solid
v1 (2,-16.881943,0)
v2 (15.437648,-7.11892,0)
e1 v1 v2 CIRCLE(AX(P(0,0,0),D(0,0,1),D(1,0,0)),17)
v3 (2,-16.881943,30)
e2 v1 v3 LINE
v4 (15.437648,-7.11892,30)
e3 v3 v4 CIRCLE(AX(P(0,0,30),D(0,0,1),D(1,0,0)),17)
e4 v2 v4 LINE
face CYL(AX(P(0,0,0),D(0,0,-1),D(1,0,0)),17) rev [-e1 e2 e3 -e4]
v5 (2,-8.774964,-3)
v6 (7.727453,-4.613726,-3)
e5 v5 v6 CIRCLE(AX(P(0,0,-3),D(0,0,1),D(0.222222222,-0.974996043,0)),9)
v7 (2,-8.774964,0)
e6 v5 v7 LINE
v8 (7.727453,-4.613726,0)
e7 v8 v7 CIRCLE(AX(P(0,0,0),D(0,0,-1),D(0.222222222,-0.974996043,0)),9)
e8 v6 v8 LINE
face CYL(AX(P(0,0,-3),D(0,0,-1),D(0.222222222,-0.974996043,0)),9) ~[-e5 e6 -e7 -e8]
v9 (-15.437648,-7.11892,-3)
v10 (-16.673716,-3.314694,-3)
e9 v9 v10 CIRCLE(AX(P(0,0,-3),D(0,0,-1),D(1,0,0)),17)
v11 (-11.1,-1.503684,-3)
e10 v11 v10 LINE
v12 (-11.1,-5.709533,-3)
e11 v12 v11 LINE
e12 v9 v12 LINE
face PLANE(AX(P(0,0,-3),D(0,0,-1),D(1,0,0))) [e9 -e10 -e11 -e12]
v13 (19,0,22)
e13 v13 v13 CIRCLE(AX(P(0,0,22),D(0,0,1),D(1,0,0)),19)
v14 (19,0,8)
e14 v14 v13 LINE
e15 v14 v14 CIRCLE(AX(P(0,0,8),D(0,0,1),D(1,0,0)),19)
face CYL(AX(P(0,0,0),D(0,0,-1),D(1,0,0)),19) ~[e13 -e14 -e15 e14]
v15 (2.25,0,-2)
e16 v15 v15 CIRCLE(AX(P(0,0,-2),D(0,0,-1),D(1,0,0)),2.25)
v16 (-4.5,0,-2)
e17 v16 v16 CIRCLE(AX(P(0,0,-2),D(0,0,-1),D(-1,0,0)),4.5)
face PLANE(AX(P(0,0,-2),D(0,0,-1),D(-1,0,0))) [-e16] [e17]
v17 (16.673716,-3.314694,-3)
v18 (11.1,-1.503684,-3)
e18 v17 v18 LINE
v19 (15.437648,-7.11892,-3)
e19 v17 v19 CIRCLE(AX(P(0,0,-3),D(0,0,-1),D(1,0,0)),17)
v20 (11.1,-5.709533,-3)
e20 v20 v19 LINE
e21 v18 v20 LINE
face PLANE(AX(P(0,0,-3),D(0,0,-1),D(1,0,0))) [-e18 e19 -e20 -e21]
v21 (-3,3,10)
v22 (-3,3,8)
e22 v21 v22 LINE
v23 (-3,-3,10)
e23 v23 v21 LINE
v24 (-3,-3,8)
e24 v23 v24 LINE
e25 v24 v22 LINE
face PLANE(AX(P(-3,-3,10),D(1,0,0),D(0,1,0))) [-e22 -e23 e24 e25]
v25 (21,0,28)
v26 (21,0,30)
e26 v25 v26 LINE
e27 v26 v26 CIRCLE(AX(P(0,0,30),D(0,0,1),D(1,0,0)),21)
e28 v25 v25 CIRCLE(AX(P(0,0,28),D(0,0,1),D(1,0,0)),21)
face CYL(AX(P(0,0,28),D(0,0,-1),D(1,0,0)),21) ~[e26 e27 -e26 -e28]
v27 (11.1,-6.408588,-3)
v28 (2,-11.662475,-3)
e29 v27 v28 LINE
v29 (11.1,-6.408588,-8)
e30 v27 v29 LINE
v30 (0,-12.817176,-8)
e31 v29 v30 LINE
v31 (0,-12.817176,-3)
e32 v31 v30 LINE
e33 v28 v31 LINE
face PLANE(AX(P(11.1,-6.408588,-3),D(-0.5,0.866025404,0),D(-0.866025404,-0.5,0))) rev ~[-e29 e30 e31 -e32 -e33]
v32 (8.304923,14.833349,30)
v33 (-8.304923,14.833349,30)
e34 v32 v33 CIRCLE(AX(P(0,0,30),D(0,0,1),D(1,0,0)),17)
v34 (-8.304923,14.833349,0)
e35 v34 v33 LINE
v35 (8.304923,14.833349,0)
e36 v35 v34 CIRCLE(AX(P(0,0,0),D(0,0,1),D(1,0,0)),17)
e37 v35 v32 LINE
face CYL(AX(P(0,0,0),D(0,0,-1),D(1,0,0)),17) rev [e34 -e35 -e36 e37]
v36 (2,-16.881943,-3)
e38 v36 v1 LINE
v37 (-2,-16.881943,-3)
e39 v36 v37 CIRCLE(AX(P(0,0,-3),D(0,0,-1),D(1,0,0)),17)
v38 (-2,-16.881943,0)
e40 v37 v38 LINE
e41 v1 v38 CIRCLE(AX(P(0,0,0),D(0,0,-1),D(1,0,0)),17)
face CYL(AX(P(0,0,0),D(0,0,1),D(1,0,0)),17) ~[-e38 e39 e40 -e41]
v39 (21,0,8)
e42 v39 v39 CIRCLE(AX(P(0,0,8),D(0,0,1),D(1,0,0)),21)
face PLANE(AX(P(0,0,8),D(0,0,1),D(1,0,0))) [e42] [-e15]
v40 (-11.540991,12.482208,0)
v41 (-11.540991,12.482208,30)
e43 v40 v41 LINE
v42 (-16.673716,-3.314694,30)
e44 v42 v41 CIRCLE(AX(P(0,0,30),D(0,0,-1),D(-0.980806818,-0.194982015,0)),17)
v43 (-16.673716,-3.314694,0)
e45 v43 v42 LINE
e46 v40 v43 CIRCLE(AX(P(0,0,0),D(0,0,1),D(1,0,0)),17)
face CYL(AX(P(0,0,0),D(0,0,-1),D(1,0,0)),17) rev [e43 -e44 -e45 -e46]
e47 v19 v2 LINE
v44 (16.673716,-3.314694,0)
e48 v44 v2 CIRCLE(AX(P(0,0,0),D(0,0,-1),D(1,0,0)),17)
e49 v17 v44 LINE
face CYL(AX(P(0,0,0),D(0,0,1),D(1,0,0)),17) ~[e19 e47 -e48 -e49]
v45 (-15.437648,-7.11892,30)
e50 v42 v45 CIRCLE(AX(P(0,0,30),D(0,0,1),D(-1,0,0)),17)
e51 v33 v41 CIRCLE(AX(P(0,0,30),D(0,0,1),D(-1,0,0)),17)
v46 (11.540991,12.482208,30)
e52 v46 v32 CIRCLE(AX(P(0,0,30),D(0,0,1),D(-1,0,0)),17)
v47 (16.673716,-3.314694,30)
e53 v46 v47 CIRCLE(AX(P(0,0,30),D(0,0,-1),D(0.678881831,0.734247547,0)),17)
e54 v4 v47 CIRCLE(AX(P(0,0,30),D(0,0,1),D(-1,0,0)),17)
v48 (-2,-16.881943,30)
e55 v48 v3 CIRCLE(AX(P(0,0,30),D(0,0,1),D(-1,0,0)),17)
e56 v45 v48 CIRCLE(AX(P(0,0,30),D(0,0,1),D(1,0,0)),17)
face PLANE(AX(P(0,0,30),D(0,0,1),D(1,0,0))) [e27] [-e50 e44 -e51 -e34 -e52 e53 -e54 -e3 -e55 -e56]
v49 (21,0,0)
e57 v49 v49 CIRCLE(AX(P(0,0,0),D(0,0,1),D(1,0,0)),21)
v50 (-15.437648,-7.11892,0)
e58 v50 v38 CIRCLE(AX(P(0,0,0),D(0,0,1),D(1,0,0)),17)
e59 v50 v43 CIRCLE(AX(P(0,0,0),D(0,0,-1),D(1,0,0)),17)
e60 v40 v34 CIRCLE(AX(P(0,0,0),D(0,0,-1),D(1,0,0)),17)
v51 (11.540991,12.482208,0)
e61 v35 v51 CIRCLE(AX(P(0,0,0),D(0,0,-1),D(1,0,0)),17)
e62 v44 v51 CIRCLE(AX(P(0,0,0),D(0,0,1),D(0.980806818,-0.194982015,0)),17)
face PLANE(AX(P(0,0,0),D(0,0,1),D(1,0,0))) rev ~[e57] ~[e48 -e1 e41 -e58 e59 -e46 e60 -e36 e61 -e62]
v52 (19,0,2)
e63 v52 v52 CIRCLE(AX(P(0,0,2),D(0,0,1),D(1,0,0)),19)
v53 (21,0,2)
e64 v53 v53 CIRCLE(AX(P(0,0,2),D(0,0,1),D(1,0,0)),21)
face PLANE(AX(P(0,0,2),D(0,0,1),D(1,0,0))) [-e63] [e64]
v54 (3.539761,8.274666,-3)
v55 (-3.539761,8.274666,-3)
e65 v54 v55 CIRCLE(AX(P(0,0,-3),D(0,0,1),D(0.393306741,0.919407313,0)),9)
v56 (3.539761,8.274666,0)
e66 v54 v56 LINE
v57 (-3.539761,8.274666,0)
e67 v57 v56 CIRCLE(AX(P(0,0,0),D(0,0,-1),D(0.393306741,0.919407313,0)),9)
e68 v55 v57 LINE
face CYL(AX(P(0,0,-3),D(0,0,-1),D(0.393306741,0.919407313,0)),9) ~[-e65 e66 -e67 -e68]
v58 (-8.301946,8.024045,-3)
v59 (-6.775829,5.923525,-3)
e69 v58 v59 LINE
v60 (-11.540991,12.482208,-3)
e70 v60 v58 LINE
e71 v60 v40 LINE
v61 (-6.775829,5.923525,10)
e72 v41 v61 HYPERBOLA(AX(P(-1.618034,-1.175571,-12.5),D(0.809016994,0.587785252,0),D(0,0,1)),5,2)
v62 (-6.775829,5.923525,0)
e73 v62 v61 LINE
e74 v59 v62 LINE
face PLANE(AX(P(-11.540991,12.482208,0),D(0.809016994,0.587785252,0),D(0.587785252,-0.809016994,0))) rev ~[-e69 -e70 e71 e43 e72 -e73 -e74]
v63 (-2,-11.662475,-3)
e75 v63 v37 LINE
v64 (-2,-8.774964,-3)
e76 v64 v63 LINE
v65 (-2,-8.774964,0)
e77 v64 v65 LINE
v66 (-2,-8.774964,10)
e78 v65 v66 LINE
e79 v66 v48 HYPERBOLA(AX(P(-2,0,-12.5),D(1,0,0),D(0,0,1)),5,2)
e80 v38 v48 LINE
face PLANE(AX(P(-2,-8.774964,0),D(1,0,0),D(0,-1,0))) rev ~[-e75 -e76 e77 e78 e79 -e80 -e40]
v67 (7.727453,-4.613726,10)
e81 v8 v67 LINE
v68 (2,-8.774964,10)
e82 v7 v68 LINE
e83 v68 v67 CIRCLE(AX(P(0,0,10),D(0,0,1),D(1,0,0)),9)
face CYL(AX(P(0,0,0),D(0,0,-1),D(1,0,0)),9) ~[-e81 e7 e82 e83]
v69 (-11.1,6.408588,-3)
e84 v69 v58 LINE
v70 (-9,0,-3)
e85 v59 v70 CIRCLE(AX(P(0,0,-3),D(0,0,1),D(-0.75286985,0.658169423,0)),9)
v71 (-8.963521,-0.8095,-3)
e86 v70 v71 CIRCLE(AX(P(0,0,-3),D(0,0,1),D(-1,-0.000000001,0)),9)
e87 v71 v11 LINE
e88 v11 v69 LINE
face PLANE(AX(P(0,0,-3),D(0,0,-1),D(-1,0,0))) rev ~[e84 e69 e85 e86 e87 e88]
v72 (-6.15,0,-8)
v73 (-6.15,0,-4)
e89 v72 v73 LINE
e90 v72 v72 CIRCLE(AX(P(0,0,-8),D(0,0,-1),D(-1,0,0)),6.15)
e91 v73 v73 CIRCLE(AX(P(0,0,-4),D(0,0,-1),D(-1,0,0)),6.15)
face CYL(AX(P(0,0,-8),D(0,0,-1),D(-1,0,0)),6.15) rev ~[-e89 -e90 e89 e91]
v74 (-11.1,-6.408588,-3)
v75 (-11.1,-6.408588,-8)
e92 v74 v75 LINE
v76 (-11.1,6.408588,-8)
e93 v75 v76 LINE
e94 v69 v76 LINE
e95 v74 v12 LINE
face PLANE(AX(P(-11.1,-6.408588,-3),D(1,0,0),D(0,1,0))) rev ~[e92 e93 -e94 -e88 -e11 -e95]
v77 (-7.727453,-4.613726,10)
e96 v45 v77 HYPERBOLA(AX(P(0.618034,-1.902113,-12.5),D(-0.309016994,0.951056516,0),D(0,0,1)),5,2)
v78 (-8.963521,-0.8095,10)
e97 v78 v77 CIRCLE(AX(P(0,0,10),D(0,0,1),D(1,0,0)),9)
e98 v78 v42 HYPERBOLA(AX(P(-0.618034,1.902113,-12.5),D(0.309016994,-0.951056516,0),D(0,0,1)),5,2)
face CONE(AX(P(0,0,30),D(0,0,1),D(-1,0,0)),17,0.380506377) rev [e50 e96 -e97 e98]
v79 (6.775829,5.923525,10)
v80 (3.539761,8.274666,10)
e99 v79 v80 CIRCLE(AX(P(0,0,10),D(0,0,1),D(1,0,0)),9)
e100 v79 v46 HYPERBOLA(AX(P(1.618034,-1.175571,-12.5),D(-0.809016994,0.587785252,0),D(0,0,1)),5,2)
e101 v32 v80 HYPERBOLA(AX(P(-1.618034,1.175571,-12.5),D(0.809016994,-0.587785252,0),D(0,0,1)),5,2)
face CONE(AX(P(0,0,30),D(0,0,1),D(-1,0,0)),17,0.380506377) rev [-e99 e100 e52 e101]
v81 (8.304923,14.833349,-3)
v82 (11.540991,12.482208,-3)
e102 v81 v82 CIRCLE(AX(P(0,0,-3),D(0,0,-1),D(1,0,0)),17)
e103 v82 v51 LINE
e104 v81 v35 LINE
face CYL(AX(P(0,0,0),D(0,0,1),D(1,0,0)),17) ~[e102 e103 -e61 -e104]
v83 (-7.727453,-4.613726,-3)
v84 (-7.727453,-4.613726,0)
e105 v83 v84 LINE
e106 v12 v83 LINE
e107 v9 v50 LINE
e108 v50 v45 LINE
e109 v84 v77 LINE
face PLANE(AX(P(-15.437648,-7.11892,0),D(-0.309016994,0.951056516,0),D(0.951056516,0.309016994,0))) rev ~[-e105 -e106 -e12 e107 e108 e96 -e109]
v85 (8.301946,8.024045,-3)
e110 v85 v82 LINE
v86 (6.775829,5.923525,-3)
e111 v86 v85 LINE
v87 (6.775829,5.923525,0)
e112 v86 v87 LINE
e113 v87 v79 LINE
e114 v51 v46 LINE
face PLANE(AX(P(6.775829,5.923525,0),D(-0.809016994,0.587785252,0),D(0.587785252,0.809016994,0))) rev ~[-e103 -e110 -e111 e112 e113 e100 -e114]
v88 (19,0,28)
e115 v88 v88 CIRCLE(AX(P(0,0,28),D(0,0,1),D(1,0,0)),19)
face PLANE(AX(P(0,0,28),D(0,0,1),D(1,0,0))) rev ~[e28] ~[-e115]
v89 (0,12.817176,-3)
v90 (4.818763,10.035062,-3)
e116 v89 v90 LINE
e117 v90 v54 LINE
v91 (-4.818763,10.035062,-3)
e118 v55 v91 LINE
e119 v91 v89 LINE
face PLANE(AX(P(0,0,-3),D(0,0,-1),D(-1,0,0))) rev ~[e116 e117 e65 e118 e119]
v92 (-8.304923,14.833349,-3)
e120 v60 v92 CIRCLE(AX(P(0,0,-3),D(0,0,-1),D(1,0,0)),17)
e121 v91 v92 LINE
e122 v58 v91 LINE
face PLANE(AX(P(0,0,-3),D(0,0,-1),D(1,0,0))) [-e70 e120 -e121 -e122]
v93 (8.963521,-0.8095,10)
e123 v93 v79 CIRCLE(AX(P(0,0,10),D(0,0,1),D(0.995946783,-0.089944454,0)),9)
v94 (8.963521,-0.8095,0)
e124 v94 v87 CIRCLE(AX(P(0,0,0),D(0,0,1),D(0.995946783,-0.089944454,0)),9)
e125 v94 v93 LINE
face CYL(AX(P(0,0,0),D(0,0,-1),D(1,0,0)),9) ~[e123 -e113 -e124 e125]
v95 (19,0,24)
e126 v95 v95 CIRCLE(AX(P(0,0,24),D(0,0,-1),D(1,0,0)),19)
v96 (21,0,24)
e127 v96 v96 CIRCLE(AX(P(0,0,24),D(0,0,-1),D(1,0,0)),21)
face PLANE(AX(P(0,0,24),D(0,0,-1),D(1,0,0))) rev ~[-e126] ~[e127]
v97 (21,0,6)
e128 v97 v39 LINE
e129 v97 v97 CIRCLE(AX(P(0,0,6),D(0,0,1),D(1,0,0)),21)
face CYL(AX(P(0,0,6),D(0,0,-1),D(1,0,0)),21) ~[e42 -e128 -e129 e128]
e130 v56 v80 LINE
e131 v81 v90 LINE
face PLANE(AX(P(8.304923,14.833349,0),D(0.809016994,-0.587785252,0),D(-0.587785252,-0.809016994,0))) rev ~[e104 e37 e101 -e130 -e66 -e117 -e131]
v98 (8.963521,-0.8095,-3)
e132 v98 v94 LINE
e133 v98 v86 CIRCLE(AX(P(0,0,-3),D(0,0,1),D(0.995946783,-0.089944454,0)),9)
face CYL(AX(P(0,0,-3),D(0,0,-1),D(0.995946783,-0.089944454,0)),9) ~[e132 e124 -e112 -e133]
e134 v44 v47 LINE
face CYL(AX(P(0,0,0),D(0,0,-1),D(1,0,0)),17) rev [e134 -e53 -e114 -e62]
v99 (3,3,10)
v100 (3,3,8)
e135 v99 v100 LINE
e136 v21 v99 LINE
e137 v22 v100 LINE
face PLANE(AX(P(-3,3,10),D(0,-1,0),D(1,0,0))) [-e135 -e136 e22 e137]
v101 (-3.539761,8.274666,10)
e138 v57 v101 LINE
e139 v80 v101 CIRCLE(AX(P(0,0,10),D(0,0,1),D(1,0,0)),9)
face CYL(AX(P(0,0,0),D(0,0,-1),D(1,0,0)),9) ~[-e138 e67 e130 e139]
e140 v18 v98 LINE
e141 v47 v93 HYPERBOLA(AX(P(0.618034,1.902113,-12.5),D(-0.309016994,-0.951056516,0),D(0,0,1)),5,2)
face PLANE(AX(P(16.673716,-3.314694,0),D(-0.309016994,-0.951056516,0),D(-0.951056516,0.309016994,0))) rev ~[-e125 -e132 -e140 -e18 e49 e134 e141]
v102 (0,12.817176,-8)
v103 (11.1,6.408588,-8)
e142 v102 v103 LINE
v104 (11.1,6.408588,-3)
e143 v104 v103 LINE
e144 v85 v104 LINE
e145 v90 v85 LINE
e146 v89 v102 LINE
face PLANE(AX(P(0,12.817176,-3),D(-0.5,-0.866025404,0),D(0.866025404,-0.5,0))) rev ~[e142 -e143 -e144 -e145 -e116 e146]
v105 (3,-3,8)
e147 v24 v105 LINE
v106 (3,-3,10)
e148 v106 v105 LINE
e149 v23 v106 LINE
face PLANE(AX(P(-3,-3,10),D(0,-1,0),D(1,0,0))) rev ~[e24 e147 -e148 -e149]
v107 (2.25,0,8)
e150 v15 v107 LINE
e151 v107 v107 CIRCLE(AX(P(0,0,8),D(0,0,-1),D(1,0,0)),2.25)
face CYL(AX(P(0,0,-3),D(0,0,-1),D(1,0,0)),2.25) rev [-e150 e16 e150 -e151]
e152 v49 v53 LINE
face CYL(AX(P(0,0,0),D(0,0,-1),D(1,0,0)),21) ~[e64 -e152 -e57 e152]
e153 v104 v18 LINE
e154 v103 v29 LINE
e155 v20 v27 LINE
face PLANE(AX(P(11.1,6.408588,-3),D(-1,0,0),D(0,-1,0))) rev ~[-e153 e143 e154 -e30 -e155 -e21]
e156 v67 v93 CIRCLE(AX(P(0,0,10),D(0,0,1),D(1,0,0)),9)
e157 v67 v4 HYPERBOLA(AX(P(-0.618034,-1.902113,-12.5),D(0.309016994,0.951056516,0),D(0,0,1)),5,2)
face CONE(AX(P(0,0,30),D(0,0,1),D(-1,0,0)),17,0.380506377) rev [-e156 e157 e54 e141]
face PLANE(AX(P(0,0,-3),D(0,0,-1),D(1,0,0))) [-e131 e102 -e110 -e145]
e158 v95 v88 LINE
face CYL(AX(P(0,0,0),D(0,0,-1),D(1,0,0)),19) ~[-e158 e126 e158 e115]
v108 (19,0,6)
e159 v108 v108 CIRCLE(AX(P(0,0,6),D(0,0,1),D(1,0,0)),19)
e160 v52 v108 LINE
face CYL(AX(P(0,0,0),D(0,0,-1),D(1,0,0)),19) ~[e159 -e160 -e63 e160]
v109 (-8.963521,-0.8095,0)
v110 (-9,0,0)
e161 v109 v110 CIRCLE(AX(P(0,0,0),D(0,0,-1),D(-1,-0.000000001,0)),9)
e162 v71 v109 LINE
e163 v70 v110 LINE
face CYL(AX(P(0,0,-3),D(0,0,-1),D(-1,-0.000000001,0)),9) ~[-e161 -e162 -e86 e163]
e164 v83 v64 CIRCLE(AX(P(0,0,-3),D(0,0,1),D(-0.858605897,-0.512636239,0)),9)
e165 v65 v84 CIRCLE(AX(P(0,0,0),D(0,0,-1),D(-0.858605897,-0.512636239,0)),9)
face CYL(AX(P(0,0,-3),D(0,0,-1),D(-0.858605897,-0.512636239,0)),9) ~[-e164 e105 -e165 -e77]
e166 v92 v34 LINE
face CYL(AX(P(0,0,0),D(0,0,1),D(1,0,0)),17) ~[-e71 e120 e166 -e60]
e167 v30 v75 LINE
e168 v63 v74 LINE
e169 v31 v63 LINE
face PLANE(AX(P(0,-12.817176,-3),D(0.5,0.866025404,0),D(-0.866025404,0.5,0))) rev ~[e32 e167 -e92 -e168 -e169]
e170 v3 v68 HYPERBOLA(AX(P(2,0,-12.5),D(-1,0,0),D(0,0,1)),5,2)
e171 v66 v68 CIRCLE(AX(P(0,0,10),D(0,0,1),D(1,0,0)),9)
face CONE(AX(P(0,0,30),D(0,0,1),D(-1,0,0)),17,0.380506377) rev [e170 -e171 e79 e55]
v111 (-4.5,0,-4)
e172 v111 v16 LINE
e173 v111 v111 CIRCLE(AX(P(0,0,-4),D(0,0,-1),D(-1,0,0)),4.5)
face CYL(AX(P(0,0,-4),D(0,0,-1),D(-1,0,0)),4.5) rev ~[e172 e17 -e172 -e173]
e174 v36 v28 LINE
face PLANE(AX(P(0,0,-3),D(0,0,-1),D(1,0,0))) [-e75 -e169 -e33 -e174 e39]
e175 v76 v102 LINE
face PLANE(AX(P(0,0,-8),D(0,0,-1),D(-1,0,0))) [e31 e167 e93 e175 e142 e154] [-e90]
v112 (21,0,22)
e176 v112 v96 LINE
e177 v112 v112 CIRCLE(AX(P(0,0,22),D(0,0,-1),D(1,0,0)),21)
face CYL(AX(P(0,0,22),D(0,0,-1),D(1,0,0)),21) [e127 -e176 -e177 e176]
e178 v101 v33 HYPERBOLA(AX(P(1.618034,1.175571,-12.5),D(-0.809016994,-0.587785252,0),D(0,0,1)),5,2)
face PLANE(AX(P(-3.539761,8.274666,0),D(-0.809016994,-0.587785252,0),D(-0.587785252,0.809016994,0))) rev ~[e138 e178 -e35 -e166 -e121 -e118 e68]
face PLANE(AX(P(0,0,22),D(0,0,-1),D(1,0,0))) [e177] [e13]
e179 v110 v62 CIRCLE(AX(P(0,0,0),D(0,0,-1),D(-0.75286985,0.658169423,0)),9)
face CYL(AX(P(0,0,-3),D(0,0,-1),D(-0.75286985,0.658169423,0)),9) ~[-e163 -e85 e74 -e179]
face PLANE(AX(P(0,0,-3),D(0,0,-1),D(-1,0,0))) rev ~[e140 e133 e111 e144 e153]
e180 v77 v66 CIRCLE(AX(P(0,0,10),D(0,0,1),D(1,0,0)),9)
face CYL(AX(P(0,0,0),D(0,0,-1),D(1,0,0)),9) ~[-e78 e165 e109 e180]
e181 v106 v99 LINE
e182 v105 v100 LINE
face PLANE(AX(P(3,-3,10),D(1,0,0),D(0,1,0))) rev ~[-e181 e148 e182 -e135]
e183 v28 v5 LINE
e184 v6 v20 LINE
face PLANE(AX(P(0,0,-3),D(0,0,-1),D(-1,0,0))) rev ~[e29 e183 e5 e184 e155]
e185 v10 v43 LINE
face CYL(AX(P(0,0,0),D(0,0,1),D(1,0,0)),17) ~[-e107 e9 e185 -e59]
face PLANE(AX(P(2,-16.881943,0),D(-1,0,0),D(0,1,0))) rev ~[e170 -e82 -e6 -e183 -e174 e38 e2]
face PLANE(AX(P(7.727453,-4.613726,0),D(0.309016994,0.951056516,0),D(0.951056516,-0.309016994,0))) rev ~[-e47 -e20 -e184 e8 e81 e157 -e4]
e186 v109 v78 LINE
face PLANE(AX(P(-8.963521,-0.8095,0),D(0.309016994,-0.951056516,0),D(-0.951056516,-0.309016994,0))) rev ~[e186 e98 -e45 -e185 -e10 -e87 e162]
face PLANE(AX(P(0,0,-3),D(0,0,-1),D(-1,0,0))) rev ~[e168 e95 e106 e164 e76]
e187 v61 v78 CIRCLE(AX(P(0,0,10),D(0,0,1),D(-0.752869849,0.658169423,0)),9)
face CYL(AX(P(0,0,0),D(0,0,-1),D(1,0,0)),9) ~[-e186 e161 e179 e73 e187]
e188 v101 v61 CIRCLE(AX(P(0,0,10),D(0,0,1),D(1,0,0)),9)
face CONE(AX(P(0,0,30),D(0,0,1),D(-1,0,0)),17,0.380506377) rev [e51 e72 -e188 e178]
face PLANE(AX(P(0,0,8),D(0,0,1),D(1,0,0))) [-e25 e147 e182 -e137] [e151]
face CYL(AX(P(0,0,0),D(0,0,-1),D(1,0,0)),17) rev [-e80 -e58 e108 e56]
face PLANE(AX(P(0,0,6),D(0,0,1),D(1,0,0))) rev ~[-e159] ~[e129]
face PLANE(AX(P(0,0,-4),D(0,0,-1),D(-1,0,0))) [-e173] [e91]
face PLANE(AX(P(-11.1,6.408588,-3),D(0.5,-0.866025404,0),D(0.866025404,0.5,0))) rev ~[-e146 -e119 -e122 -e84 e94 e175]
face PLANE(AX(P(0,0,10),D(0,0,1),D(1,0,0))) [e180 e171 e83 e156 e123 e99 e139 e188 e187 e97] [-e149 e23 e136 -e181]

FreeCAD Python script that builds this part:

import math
import FreeCAD as App
import Part
import Sketcher

V = App.Vector
Q = App.Units.Quantity

doc = App.newDocument("Part")
body = doc.addObject("PartDesign::Body", "Body")

sketch1 = body.newObject("Sketcher::SketchObject", "Sketch")
sketch1.AttachmentSupport = (doc.getObject("XY_Plane"), [""])
sketch1.MapMode = "FlatFace"
sketch1.addGeometry(Part.Circle(V(0, 0, 0), V(0, 0, 1), 19), False)
sketch1.addGeometry(Part.Circle(V(0, 0, 0), V(0, 0, 1), 17), False)
sketch1.addConstraint(Sketcher.Constraint("Coincident", 0, 3, -1, 1))
sketch1.addConstraint(Sketcher.Constraint("Coincident", 1, 3, -1, 1))
sketch1.addConstraint(Sketcher.Constraint("Diameter", 0, Q("38 mm")))
sketch1.addConstraint(Sketcher.Constraint("Diameter", 1, Q("34 mm")))
pad1 = body.newObject("PartDesign::Pad", "Pad")
pad1.Profile = sketch1
pad1.Length = 30
body2 = doc.addObject("PartDesign::Body", "Body001")

sketch2 = body2.newObject("Sketcher::SketchObject", "Sketch001")
sketch2.AttachmentSupport = (doc.getObject("XY_Plane001"), [""])
sketch2.MapMode = "FlatFace"
sketch2.addGeometry(Part.Circle(V(0, 0, 0), V(0, 0, 1), 17), False)
sketch2.addConstraint(Sketcher.Constraint("Coincident", 0, 3, -1, 1))
sketch2.addConstraint(Sketcher.Constraint("Diameter", 0, Q("34 mm")))
pad2 = body2.newObject("PartDesign::Pad", "Pad001")
pad2.Profile = sketch2
pad2.Length = 3
pad2.Reversed = True

sketch3 = body2.newObject("Sketcher::SketchObject", "Sketch002")
sketch3.AttachmentSupport = (doc.getObject("XY_Plane001"), [""])
sketch3.MapMode = "FlatFace"
sketch3.AttachmentOffset = App.Placement(V(0, 0, -3), App.Rotation())
sketch3.addGeometry(Part.LineSegment(V(8.304923, 14.833349, 0), V(3.539761, 8.274666, 0)), False)
sketch3.addGeometry(Part.ArcOfCircle(Part.Circle(V(0, 0, 0), V(0, 0, 1), 9), math.radians(66.839588), math.radians(113.160412)), False)
sketch3.addGeometry(Part.LineSegment(V(-3.539761, 8.274666, 0), V(-8.304923, 14.833349, 0)), False)
sketch3.addGeometry(Part.ArcOfCircle(Part.Circle(V(0, 0, 0), V(0, 0, 1), 17), math.radians(60.756327), math.radians(119.243673)), False)
sketch3.addGeometry(Part.ArcOfCircle(Part.Circle(V(0, 0, 0), V(0, 0, 1), 9), math.radians(-180), math.radians(-174.839589)), False)
sketch3.addGeometry(Part.LineSegment(V(-8.963521, -0.8095, 0), V(-16.673716, -3.314694, 0)), False)
sketch3.addGeometry(Part.ArcOfCircle(Part.Circle(V(0, 0, 0), V(0, 0, 1), 17), math.radians(180), math.radians(191.243673)), False)
sketch3.addGeometry(Part.ArcOfCircle(Part.Circle(V(0, 0, 0), V(0, 0, 1), 17), math.radians(132.756327), math.radians(180)), False)
sketch3.addGeometry(Part.LineSegment(V(-11.540991, 12.482208, 0), V(-6.775829, 5.923525, 0)), False)
sketch3.addGeometry(Part.ArcOfCircle(Part.Circle(V(0, 0, 0), V(0, 0, 1), 9), math.radians(138.839588), math.radians(180)), False)
sketch3.addGeometry(Part.ArcOfCircle(Part.Circle(V(0, 0, 0), V(0, 0, 1), 9), math.radians(-149.160412), math.radians(-102.839588)), False)
sketch3.addGeometry(Part.LineSegment(V(-2, -8.774964, 0), V(-2, -16.881943, 0)), False)
sketch3.addGeometry(Part.ArcOfCircle(Part.Circle(V(0, 0, 0), V(0, 0, 1), 17), math.radians(-155.243673), math.radians(-96.756327)), False)
sketch3.addGeometry(Part.LineSegment(V(-15.437648, -7.11892, 0), V(-7.727453, -4.613726, 0)), False)
sketch3.addGeometry(Part.LineSegment(V(2, -16.881943, 0), V(2, -8.774964, 0)), False)
sketch3.addGeometry(Part.ArcOfCircle(Part.Circle(V(0, 0, 0), V(0, 0, 1), 9), math.radians(-77.160412), math.radians(-30.839588)), False)
sketch3.addGeometry(Part.LineSegment(V(7.727453, -4.613726, 0), V(15.437648, -7.11892, 0)), False)
sketch3.addGeometry(Part.ArcOfCircle(Part.Circle(V(0, 0, 0), V(0, 0, 1), 17), math.radians(-83.243673), math.radians(-24.756327)), False)
sketch3.addGeometry(Part.LineSegment(V(16.673716, -3.314694, 0), V(8.963521, -0.8095, 0)), False)
sketch3.addGeometry(Part.ArcOfCircle(Part.Circle(V(0, 0, 0), V(0, 0, 1), 9), math.radians(-5.160412), math.radians(41.160412)), False)
sketch3.addGeometry(Part.LineSegment(V(6.775829, 5.923525, 0), V(11.540991, 12.482208, 0)), False)
sketch3.addGeometry(Part.ArcOfCircle(Part.Circle(V(0, 0, 0), V(0, 0, 1), 17), math.radians(-11.243673), math.radians(47.243673)), False)
sketch3.addConstraint(Sketcher.Constraint("Coincident", 0, 2, 1, 1))
sketch3.addConstraint(Sketcher.Constraint("Coincident", 1, 2, 2, 1))
sketch3.addConstraint(Sketcher.Constraint("Coincident", 2, 2, 3, 2))
sketch3.addConstraint(Sketcher.Constraint("Coincident", 3, 1, 0, 1))
sketch3.addConstraint(Sketcher.Constraint("Coincident", 4, 2, 5, 1))
sketch3.addConstraint(Sketcher.Constraint("Coincident", 5, 2, 6, 2))
sketch3.addConstraint(Sketcher.Constraint("Tangent", 6, 1, 7, 2))
sketch3.addConstraint(Sketcher.Constraint("Coincident", 7, 1, 8, 1))
sketch3.addConstraint(Sketcher.Constraint("Coincident", 8, 2, 9, 1))
sketch3.addConstraint(Sketcher.Constraint("Tangent", 9, 2, 4, 1))
sketch3.addConstraint(Sketcher.Constraint("Coincident", 10, 2, 11, 1))
sketch3.addConstraint(Sketcher.Constraint("Coincident", 11, 2, 12, 2))
sketch3.addConstraint(Sketcher.Constraint("Coincident", 12, 1, 13, 1))
sketch3.addConstraint(Sketcher.Constraint("Coincident", 13, 2, 10, 1))
sketch3.addConstraint(Sketcher.Constraint("Coincident", 14, 2, 15, 1))
sketch3.addConstraint(Sketcher.Constraint("Coincident", 15, 2, 16, 1))
sketch3.addConstraint(Sketcher.Constraint("Coincident", 16, 2, 17, 2))
sketch3.addConstraint(Sketcher.Constraint("Coincident", 17, 1, 14, 1))
sketch3.addConstraint(Sketcher.Constraint("Coincident", 18, 2, 19, 1))
sketch3.addConstraint(Sketcher.Constraint("Coincident", 19, 2, 20, 1))
sketch3.addConstraint(Sketcher.Constraint("Coincident", 20, 2, 21, 2))
sketch3.addConstraint(Sketcher.Constraint("Coincident", 21, 1, 18, 1))
sketch3.addConstraint(Sketcher.Constraint("Vertical", 11))
sketch3.addConstraint(Sketcher.Constraint("Vertical", 14))
sketch3.addConstraint(Sketcher.Constraint("Coincident", 1, 3, -1, 1))
sketch3.addConstraint(Sketcher.Constraint("Coincident", 3, 3, -1, 1))
sketch3.addConstraint(Sketcher.Constraint("Coincident", 4, 3, -1, 1))
sketch3.addConstraint(Sketcher.Constraint("Coincident", 6, 3, -1, 1))
sketch3.addConstraint(Sketcher.Constraint("Coincident", 10, 3, -1, 1))
sketch3.addConstraint(Sketcher.Constraint("Coincident", 12, 3, -1, 1))
sketch3.addConstraint(Sketcher.Constraint("Coincident", 15, 3, -1, 1))
sketch3.addConstraint(Sketcher.Constraint("Coincident", 17, 3, -1, 1))
sketch3.addConstraint(Sketcher.Constraint("Coincident", 19, 3, -1, 1))
sketch3.addConstraint(Sketcher.Constraint("Coincident", 21, 3, -1, 1))
sketch3.addConstraint(Sketcher.Constraint("Equal", 1, 4))
sketch3.addConstraint(Sketcher.Constraint("Equal", 3, 6))
sketch3.addConstraint(Sketcher.Constraint("Equal", 6, 7))
sketch3.addConstraint(Sketcher.Constraint("Equal", 4, 9))
sketch3.addConstraint(Sketcher.Constraint("Equal", 9, 10))
sketch3.addConstraint(Sketcher.Constraint("Equal", 7, 12))
sketch3.addConstraint(Sketcher.Constraint("Equal", 10, 15))
sketch3.addConstraint(Sketcher.Constraint("Equal", 12, 17))
sketch3.addConstraint(Sketcher.Constraint("Equal", 15, 19))
sketch3.addConstraint(Sketcher.Constraint("Equal", 17, 21))
sketch3.addConstraint(Sketcher.Constraint("PointOnObject", 6, 1, -1))
sketch3.addConstraint(Sketcher.Constraint("PointOnObject", 9, 2, -1))
sketch3.addConstraint(Sketcher.Constraint("Parallel", 2, 8))
sketch3.addConstraint(Sketcher.Constraint("Parallel", 5, 13))
sketch3.addConstraint(Sketcher.Constraint("Parallel", 16, 18))
sketch3.addConstraint(Sketcher.Constraint("Parallel", 0, 20))
sketch3.addConstraint(Sketcher.Constraint("Horizontal", 0, 2, 1, 2))
sketch3.addConstraint(Sketcher.Constraint("Horizontal", 2, 2, 3, 1))
sketch3.addConstraint(Sketcher.Constraint("Horizontal", 10, 2, 14, 2))
sketch3.addConstraint(Sketcher.Constraint("Horizontal", 13, 2, 15, 2))
sketch3.addConstraint(Sketcher.Constraint("Horizontal", 12, 1, 16, 2))
sketch3.addConstraint(Sketcher.Constraint("Horizontal", 4, 2, 18, 2))
sketch3.addConstraint(Sketcher.Constraint("Horizontal", 8, 2, 19, 2))
sketch3.addConstraint(Sketcher.Constraint("Equal", 2, 5))
sketch3.addConstraint(Sketcher.Constraint("Equal", 5, 8))
sketch3.addConstraint(Sketcher.Constraint("Equal", 8, 13))
sketch3.addConstraint(Sketcher.Constraint("Radius", 1, Q("9 mm")))
sketch3.addConstraint(Sketcher.Constraint("Radius", 3, Q("17 mm")))
sketch3.addConstraint(Sketcher.Constraint("Angle", 0, Q("-126 deg")))
sketch3.addConstraint(Sketcher.Constraint("Angle", 5, Q("-162 deg")))
sketch3.addConstraint(Sketcher.Constraint("DistanceX", 10, 2, -1, 1, Q("2 mm")))
sketch3.addConstraint(Sketcher.Constraint("DistanceY", 4, 2, -1, 1, Q("0.8095 mm")))
pocket1 = body2.newObject("PartDesign::Pocket", "Pocket")
pocket1.Profile = sketch3
pocket1.Length = 10
pocket1.Reversed = True
body3 = doc.addObject("PartDesign::Body", "Body002")

sketch4 = body3.newObject("Sketcher::SketchObject", "Sketch003")
sketch4.AttachmentSupport = (doc.getObject("XY_Plane002"), [""])
sketch4.MapMode = "FlatFace"
sketch4.addGeometry(Part.Circle(V(0, 0, 0), V(0, 0, 1), 9), False)
sketch4.addConstraint(Sketcher.Constraint("Coincident", 0, 3, -1, 1))
sketch4.addConstraint(Sketcher.Constraint("Diameter", 0, Q("18 mm")))
pad3 = body3.newObject("PartDesign::Pad", "Pad002")
pad3.Profile = sketch4
pad3.Length = 10
body.AllowCompound = True
doc.recompute()

boolean = body.newObject("PartDesign::Boolean", "Boolean")
boolean.Type = "Fuse"
boolean.addObjects([body2])
doc.recompute()

boolean2 = body.newObject("PartDesign::Boolean", "Boolean001")
boolean2.Type = "Fuse"
boolean2.addObjects([body3])

sketch5 = body.newObject("Sketcher::SketchObject", "Sketch004")
sketch5.AttachmentSupport = (doc.getObject("XY_Plane"), [""])
sketch5.MapMode = "FlatFace"
sketch5.addGeometry(Part.ArcOfCircle(Part.Circle(V(0, 0, 0), V(0, 0, 1), 9), math.radians(113.160412), math.radians(138.839588)), False)
sketch5.addGeometry(Part.LineSegment(V(-3.539761, 8.274666, 0), V(-8.304923, 14.833349, 0)), False)
sketch5.addGeometry(Part.ArcOfCircle(Part.Circle(V(0, 0, 0), V(0, 0, 1), 17), math.radians(119.243673), math.radians(132.756327)), False)
sketch5.addGeometry(Part.LineSegment(V(-11.540991, 12.482208, 0), V(-6.775829, 5.923525, 0)), False)
sketch5.addGeometry(Part.LineSegment(V(8.304923, 14.833349, 0), V(3.539761, 8.274666, 0)), False)
sketch5.addGeometry(Part.ArcOfCircle(Part.Circle(V(0, 0, 0), V(0, 0, 1), 9), math.radians(41.160412), math.radians(66.839588)), False)
sketch5.addGeometry(Part.LineSegment(V(6.775829, 5.923525, 0), V(11.540991, 12.482208, 0)), False)
sketch5.addGeometry(Part.ArcOfCircle(Part.Circle(V(0, 0, 0), V(0, 0, 1), 17), math.radians(47.243673), math.radians(60.756327)), False)
sketch5.addGeometry(Part.LineSegment(V(16.673716, -3.314694, 0), V(8.963521, -0.8095, 0)), False)
sketch5.addGeometry(Part.ArcOfCircle(Part.Circle(V(0, 0, 0), V(0, 0, 1), 9), math.radians(-30.839588), math.radians(-5.160412)), False)
sketch5.addGeometry(Part.LineSegment(V(7.727453, -4.613726, 0), V(15.437648, -7.11892, 0)), False)
sketch5.addGeometry(Part.ArcOfCircle(Part.Circle(V(0, 0, 0), V(0, 0, 1), 17), math.radians(-24.756327), math.radians(-11.243673)), False)
sketch5.addGeometry(Part.LineSegment(V(2, -16.881943, 0), V(2, -8.774964, 0)), False)
sketch5.addGeometry(Part.ArcOfCircle(Part.Circle(V(0, 0, 0), V(0, 0, 1), 9), math.radians(-102.839588), math.radians(-77.160412)), False)
sketch5.addGeometry(Part.LineSegment(V(-2, -8.774964, 0), V(-2, -16.881943, 0)), False)
sketch5.addGeometry(Part.ArcOfCircle(Part.Circle(V(0, 0, 0), V(0, 0, 1), 17), math.radians(-96.756327), math.radians(-83.243673)), False)
sketch5.addGeometry(Part.ArcOfCircle(Part.Circle(V(0, 0, 0), V(0, 0, 1), 9), math.radians(-174.839588), math.radians(-149.160412)), False)
sketch5.addGeometry(Part.LineSegment(V(-8.963521, -0.8095, 0), V(-16.673716, -3.314694, 0)), False)
sketch5.addGeometry(Part.ArcOfCircle(Part.Circle(V(0, 0, 0), V(0, 0, 1), 17), math.radians(-168.756327), math.radians(-155.243673)), False)
sketch5.addGeometry(Part.LineSegment(V(-15.437648, -7.11892, 0), V(-7.727453, -4.613726, 0)), False)
sketch5.addConstraint(Sketcher.Constraint("Coincident", 0, 1, 1, 1))
sketch5.addConstraint(Sketcher.Constraint("Coincident", 1, 2, 2, 1))
sketch5.addConstraint(Sketcher.Constraint("Coincident", 2, 2, 3, 1))
sketch5.addConstraint(Sketcher.Constraint("Coincident", 3, 2, 0, 2))
sketch5.addConstraint(Sketcher.Constraint("Coincident", 4, 2, 5, 2))
sketch5.addConstraint(Sketcher.Constraint("Coincident", 5, 1, 6, 1))
sketch5.addConstraint(Sketcher.Constraint("Coincident", 6, 2, 7, 1))
sketch5.addConstraint(Sketcher.Constraint("Coincident", 7, 2, 4, 1))
sketch5.addConstraint(Sketcher.Constraint("Coincident", 8, 2, 9, 2))
sketch5.addConstraint(Sketcher.Constraint("Coincident", 9, 1, 10, 1))
sketch5.addConstraint(Sketcher.Constraint("Coincident", 10, 2, 11, 1))
sketch5.addConstraint(Sketcher.Constraint("Coincident", 11, 2, 8, 1))
sketch5.addConstraint(Sketcher.Constraint("Coincident", 12, 2, 13, 2))
sketch5.addConstraint(Sketcher.Constraint("Coincident", 13, 1, 14, 1))
sketch5.addConstraint(Sketcher.Constraint("Coincident", 14, 2, 15, 1))
sketch5.addConstraint(Sketcher.Constraint("Coincident", 15, 2, 12, 1))
sketch5.addConstraint(Sketcher.Constraint("Coincident", 16, 1, 17, 1))
sketch5.addConstraint(Sketcher.Constraint("Coincident", 17, 2, 18, 1))
sketch5.addConstraint(Sketcher.Constraint("Coincident", 18, 2, 19, 1))
sketch5.addConstraint(Sketcher.Constraint("Coincident", 19, 2, 16, 2))
sketch5.addConstraint(Sketcher.Constraint("Vertical", 12))
sketch5.addConstraint(Sketcher.Constraint("Vertical", 14))
sketch5.addConstraint(Sketcher.Constraint("Coincident", 0, 3, -1, 1))
sketch5.addConstraint(Sketcher.Constraint("Coincident", 2, 3, -1, 1))
sketch5.addConstraint(Sketcher.Constraint("Coincident", 5, 3, -1, 1))
sketch5.addConstraint(Sketcher.Constraint("Coincident", 7, 3, -1, 1))
sketch5.addConstraint(Sketcher.Constraint("Coincident", 9, 3, -1, 1))
sketch5.addConstraint(Sketcher.Constraint("Coincident", 11, 3, -1, 1))
sketch5.addConstraint(Sketcher.Constraint("Coincident", 13, 3, -1, 1))
sketch5.addConstraint(Sketcher.Constraint("Coincident", 15, 3, -1, 1))
sketch5.addConstraint(Sketcher.Constraint("Coincident", 16, 3, -1, 1))
sketch5.addConstraint(Sketcher.Constraint("Coincident", 18, 3, -1, 1))
sketch5.addConstraint(Sketcher.Constraint("Equal", 0, 5))
sketch5.addConstraint(Sketcher.Constraint("Equal", 2, 7))
sketch5.addConstraint(Sketcher.Constraint("Equal", 5, 9))
sketch5.addConstraint(Sketcher.Constraint("Equal", 7, 11))
sketch5.addConstraint(Sketcher.Constraint("Equal", 9, 13))
sketch5.addConstraint(Sketcher.Constraint("Equal", 11, 15))
sketch5.addConstraint(Sketcher.Constraint("Equal", 13, 16))
sketch5.addConstraint(Sketcher.Constraint("Equal", 15, 18))
sketch5.addConstraint(Sketcher.Constraint("Parallel", 1, 3))
sketch5.addConstraint(Sketcher.Constraint("Parallel", 4, 6))
sketch5.addConstraint(Sketcher.Constraint("Parallel", 8, 10))
sketch5.addConstraint(Sketcher.Constraint("Parallel", 17, 19))
sketch5.addConstraint(Sketcher.Constraint("Horizontal", 0, 1, 4, 2))
sketch5.addConstraint(Sketcher.Constraint("Horizontal", 3, 2, 5, 1))
sketch5.addConstraint(Sketcher.Constraint("Horizontal", 2, 2, 6, 2))
sketch5.addConstraint(Sketcher.Constraint("Horizontal", 12, 2, 13, 1))
sketch5.addConstraint(Sketcher.Constraint("Horizontal", 8, 2, 16, 1))
sketch5.addConstraint(Sketcher.Constraint("Horizontal", 11, 2, 17, 2))
sketch5.addConstraint(Sketcher.Constraint("Horizontal", 10, 2, 18, 2))
sketch5.addConstraint(Sketcher.Constraint("Equal", 1, 3))
sketch5.addConstraint(Sketcher.Constraint("Equal", 6, 8))
sketch5.addConstraint(Sketcher.Constraint("Equal", 8, 10))
sketch5.addConstraint(Sketcher.Constraint("Radius", 0, Q("9 mm")))
sketch5.addConstraint(Sketcher.Constraint("Radius", 2, Q("17 mm")))
sketch5.addConstraint(Sketcher.Constraint("Angle", 1, Q("126 deg")))
sketch5.addConstraint(Sketcher.Constraint("Angle", 8, Q("162 deg")))
sketch5.addConstraint(Sketcher.Constraint("DistanceX", -1, 1, 12, 2, Q("2 mm")))
sketch5.addConstraint(Sketcher.Constraint("DistanceY", 8, 2, -1, 1, Q("0.8095 mm")))
pad4 = body.newObject("PartDesign::Pad", "Pad003")
pad4.Profile = sketch5
pad4.Length = 30

sketch6 = body.newObject("Sketcher::SketchObject", "Sketch005")
sketch6.AttachmentSupport = (doc.getObject("XY_Plane"), [""])
sketch6.MapMode = "FlatFace"
sketch6.AttachmentOffset = App.Placement(V(0, 0, -3), App.Rotation())
sketch6.addGeometry(Part.Circle(V(0, 0, 0), V(0, 0, 1), 2.25), False)
sketch6.addConstraint(Sketcher.Constraint("Coincident", 0, 3, -1, 1))
sketch6.addConstraint(Sketcher.Constraint("Diameter", 0, Q("4.5 mm")))
pocket2 = body.newObject("PartDesign::Pocket", "Pocket001")
pocket2.Profile = sketch6
pocket2.Length = 70
pocket2.Reversed = True

sketch7 = body.newObject("Sketcher::SketchObject", "Sketch006")
sketch7.AttachmentSupport = (doc.getObject("XY_Plane"), [""])
sketch7.MapMode = "FlatFace"
sketch7.addGeometry(Part.Circle(V(0, 0, 0), V(0, 0, 1), 21), False)
sketch7.addGeometry(Part.Circle(V(0, 0, 0), V(0, 0, 1), 19), False)
sketch7.addConstraint(Sketcher.Constraint("Coincident", 0, 3, -1, 1))
sketch7.addConstraint(Sketcher.Constraint("Coincident", 1, 3, -1, 1))
sketch7.addConstraint(Sketcher.Constraint("Diameter", 0, Q("42 mm")))
sketch7.addConstraint(Sketcher.Constraint("Diameter", 1, Q("38 mm")))
pad5 = body.newObject("PartDesign::Pad", "Pad004")
pad5.Profile = sketch7
pad5.Length = 2

sketch8 = body.newObject("Sketcher::SketchObject", "Sketch007")
sketch8.AttachmentSupport = (doc.getObject("XY_Plane"), [""])
sketch8.MapMode = "FlatFace"
sketch8.AttachmentOffset = App.Placement(V(0, 0, 6), App.Rotation())
sketch8.addGeometry(Part.Circle(V(0, 0, 0), V(0, 0, 1), 21), False)
sketch8.addGeometry(Part.Circle(V(0, 0, 0), V(0, 0, 1), 19), False)
sketch8.addConstraint(Sketcher.Constraint("Coincident", 0, 3, -1, 1))
sketch8.addConstraint(Sketcher.Constraint("Coincident", 1, 3, -1, 1))
sketch8.addConstraint(Sketcher.Constraint("Diameter", 0, Q("42 mm")))
sketch8.addConstraint(Sketcher.Constraint("Diameter", 1, Q("38 mm")))
pad6 = body.newObject("PartDesign::Pad", "Pad005")
pad6.Profile = sketch8
pad6.Length = 2

sketch9 = body.newObject("Sketcher::SketchObject", "Sketch008")
sketch9.AttachmentSupport = (doc.getObject("XY_Plane"), [""])
sketch9.MapMode = "FlatFace"
sketch9.AttachmentOffset = App.Placement(V(0, 0, 28), App.Rotation())
sketch9.addGeometry(Part.Circle(V(0, 0, 0), V(0, 0, 1), 21), False)
sketch9.addGeometry(Part.Circle(V(0, 0, 0), V(0, 0, 1), 19), False)
sketch9.addConstraint(Sketcher.Constraint("Coincident", 0, 3, -1, 1))
sketch9.addConstraint(Sketcher.Constraint("Coincident", 1, 3, -1, 1))
sketch9.addConstraint(Sketcher.Constraint("Diameter", 0, Q("42 mm")))
sketch9.addConstraint(Sketcher.Constraint("Diameter", 1, Q("38 mm")))
pad7 = body.newObject("PartDesign::Pad", "Pad006")
pad7.Profile = sketch9
pad7.Length = 2

sketch10 = body.newObject("Sketcher::SketchObject", "Sketch009")
sketch10.AttachmentSupport = (doc.getObject("XY_Plane"), [""])
sketch10.MapMode = "FlatFace"
sketch10.AttachmentOffset = App.Placement(V(0, 0, 22), App.Rotation())
sketch10.addGeometry(Part.Circle(V(0, 0, 0), V(0, 0, 1), 21), False)
sketch10.addGeometry(Part.Circle(V(0, 0, 0), V(0, 0, 1), 19), False)
sketch10.addConstraint(Sketcher.Constraint("Coincident", 0, 3, -1, 1))
sketch10.addConstraint(Sketcher.Constraint("Coincident", 1, 3, -1, 1))
sketch10.addConstraint(Sketcher.Constraint("Diameter", 0, Q("42 mm")))
sketch10.addConstraint(Sketcher.Constraint("Diameter", 1, Q("38 mm")))
pad8 = body.newObject("PartDesign::Pad", "Pad007")
pad8.Profile = sketch10
pad8.Length = 2

sketch11 = body.newObject("Sketcher::SketchObject", "Sketch010")
sketch11.AttachmentSupport = (doc.getObject("XY_Plane"), [""])
sketch11.MapMode = "FlatFace"
sketch11.AttachmentOffset = App.Placement(V(0, 0, 10), App.Rotation())
sketch11.addGeometry(Part.LineSegment(V(-3, 3, 0), V(-3, -3, 0)), False)
sketch11.addGeometry(Part.LineSegment(V(-3, -3, 0), V(3, -3, 0)), False)
sketch11.addGeometry(Part.LineSegment(V(3, -3, 0), V(3, 3, 0)), False)
sketch11.addGeometry(Part.LineSegment(V(3, 3, 0), V(-3, 3, 0)), False)
sketch11.addConstraint(Sketcher.Constraint("Coincident", 0, 2, 1, 1))
sketch11.addConstraint(Sketcher.Constraint("Coincident", 1, 2, 2, 1))
sketch11.addConstraint(Sketcher.Constraint("Coincident", 2, 2, 3, 1))
sketch11.addConstraint(Sketcher.Constraint("Coincident", 3, 2, 0, 1))
sketch11.addConstraint(Sketcher.Constraint("Vertical", 0))
sketch11.addConstraint(Sketcher.Constraint("Horizontal", 1))
sketch11.addConstraint(Sketcher.Constraint("Vertical", 2))
sketch11.addConstraint(Sketcher.Constraint("Horizontal", 3))
sketch11.addConstraint(Sketcher.Constraint("Symmetric", 0, 2, 2, 2, -1, 1))
sketch11.addConstraint(Sketcher.Constraint("Equal", 3, 0))
sketch11.addConstraint(Sketcher.Constraint("DistanceX", 1, 1, 1, 2, Q("6 mm")))
pocket3 = body.newObject("PartDesign::Pocket", "Pocket002")
pocket3.Profile = sketch11
pocket3.Length = 2

sketch12 = body.newObject("Sketcher::SketchObject", "Sketch011")
sketch12.AttachmentSupport = (doc.getObject("XY_Plane"), [""])
sketch12.MapMode = "FlatFace"
sketch12.AttachmentOffset = App.Placement(V(0, 0, -3), App.Rotation())
sketch12.addGeometry(Part.LineSegment(V(11.1, -6.408588, 0), V(0, -12.817176, 0)), False)
sketch12.addGeometry(Part.LineSegment(V(0, -12.817176, 0), V(-11.1, -6.408588, 0)), False)
sketch12.addGeometry(Part.LineSegment(V(-11.1, -6.408588, 0), V(-11.1, 6.408588, 0)), False)
sketch12.addGeometry(Part.LineSegment(V(-11.1, 6.408588, 0), V(0, 12.817176, 0)), False)
sketch12.addGeometry(Part.LineSegment(V(0, 12.817176, 0), V(11.1, 6.408588, 0)), False)
sketch12.addGeometry(Part.LineSegment(V(11.1, 6.408588, 0), V(11.1, -6.408588, 0)), False)
sketch12.addGeometry(Part.Circle(V(0, 0, 0), V(0, 0, 1), 2.15), False)
sketch12.addConstraint(Sketcher.Constraint("Coincident", 0, 2, 1, 1))
sketch12.addConstraint(Sketcher.Constraint("Coincident", 1, 2, 2, 1))
sketch12.addConstraint(Sketcher.Constraint("Coincident", 2, 2, 3, 1))
sketch12.addConstraint(Sketcher.Constraint("Coincident", 3, 2, 4, 1))
sketch12.addConstraint(Sketcher.Constraint("Coincident", 4, 2, 5, 1))
sketch12.addConstraint(Sketcher.Constraint("Coincident", 5, 2, 0, 1))
sketch12.addConstraint(Sketcher.Constraint("Vertical", 2))
sketch12.addConstraint(Sketcher.Constraint("Vertical", 5))
sketch12.addConstraint(Sketcher.Constraint("Coincident", 6, 3, -1, 1))
sketch12.addConstraint(Sketcher.Constraint("Symmetric", 0, 2, 3, 2, -1, 1))
sketch12.addConstraint(Sketcher.Constraint("Symmetric", 1, 2, 4, 2, -1, 1))
sketch12.addConstraint(Sketcher.Constraint("PointOnObject", 0, 2, -2))
sketch12.addConstraint(Sketcher.Constraint("Parallel", 0, 3))
sketch12.addConstraint(Sketcher.Constraint("Horizontal", 2, 2, 4, 2))
sketch12.addConstraint(Sketcher.Constraint("Diameter", 6, Q("4.3 mm")))
sketch12.addConstraint(Sketcher.Constraint("Angle", 0, Q("-150 deg")))
sketch12.addConstraint(Sketcher.Constraint("DistanceX", 1, 2, -1, 1, Q("11.1 mm")))
sketch12.addConstraint(Sketcher.Constraint("DistanceY", 2, 1, 2, 2, Q("12.817176 mm")))
pad9 = body.newObject("PartDesign::Pad", "Pad008")
pad9.Profile = sketch12
pad9.Length = 5
pad9.Reversed = True

sketch13 = body.newObject("Sketcher::SketchObject", "Sketch012")
sketch13.AttachmentSupport = (doc.getObject("XY_Plane"), [""])
sketch13.MapMode = "FlatFace"
sketch13.AttachmentOffset = App.Placement(V(0, 0, -8), App.Rotation())
sketch13.addGeometry(Part.Circle(V(0, 0, 0), V(0, 0, 1), 6.15), False)
sketch13.addConstraint(Sketcher.Constraint("Coincident", 0, 3, -1, 1))
sketch13.addConstraint(Sketcher.Constraint("Diameter", 0, Q("12.3 mm")))
pocket4 = body.newObject("PartDesign::Pocket", "Pocket003")
pocket4.Profile = sketch13
pocket4.Length = 4
pocket4.Reversed = True

sketch14 = body.newObject("Sketcher::SketchObject", "Sketch013")
sketch14.AttachmentSupport = (doc.getObject("XY_Plane"), [""])
sketch14.MapMode = "FlatFace"
sketch14.AttachmentOffset = App.Placement(V(0, 0, -4), App.Rotation())
sketch14.addGeometry(Part.Circle(V(0, 0, 0), V(0, 0, 1), 4.5), False)
sketch14.addConstraint(Sketcher.Constraint("Coincident", 0, 3, -1, 1))
sketch14.addConstraint(Sketcher.Constraint("Diameter", 0, Q("9 mm")))
pocket5 = body.newObject("PartDesign::Pocket", "Pocket004")
pocket5.Profile = sketch14
pocket5.Length = 2
pocket5.Reversed = True

sketch15 = body.newObject("Sketcher::SketchObject", "Sketch014")
sketch15.Placement = App.Placement(V(0, 0, 0), App.Rotation(V(0.951056516, -0.309016994, 0), V(0, 0, 0.999999999), V(-0.309016994, -0.951056516, 0), "ZXY"))
sketch15.addGeometry(Part.LineSegment(V(9, 10, 0), V(17, 30, 0)), False)
sketch15.addGeometry(Part.LineSegment(V(17, 30, 0), V(9, 30, 0)), False)
sketch15.addGeometry(Part.LineSegment(V(9, 30, 0), V(9, 10, 0)), False)
sketch15.addConstraint(Sketcher.Constraint("Coincident", 0, 2, 1, 1))
sketch15.addConstraint(Sketcher.Constraint("Coincident", 1, 2, 2, 1))
sketch15.addConstraint(Sketcher.Constraint("Coincident", 2, 2, 0, 1))
sketch15.addConstraint(Sketcher.Constraint("Horizontal", 1))
sketch15.addConstraint(Sketcher.Constraint("Vertical", 2))
sketch15.addConstraint(Sketcher.Constraint("DistanceX", 1, 2, 1, 1, Q("8 mm")))
sketch15.addConstraint(Sketcher.Constraint("DistanceY", 2, 2, 2, 1, Q("20 mm")))
sketch15.addConstraint(Sketcher.Constraint("DistanceX", -1, 1, 0, 2, Q("17 mm")))
sketch15.addConstraint(Sketcher.Constraint("DistanceY", -1, 1, 0, 2, Q("30 mm")))
groove = body.newObject("PartDesign::Groove", "Groove")
groove.Profile = sketch15
groove.ReferenceAxis = (sketch15, ["V_Axis"])
groove.Angle = 360

doc.recompute()
